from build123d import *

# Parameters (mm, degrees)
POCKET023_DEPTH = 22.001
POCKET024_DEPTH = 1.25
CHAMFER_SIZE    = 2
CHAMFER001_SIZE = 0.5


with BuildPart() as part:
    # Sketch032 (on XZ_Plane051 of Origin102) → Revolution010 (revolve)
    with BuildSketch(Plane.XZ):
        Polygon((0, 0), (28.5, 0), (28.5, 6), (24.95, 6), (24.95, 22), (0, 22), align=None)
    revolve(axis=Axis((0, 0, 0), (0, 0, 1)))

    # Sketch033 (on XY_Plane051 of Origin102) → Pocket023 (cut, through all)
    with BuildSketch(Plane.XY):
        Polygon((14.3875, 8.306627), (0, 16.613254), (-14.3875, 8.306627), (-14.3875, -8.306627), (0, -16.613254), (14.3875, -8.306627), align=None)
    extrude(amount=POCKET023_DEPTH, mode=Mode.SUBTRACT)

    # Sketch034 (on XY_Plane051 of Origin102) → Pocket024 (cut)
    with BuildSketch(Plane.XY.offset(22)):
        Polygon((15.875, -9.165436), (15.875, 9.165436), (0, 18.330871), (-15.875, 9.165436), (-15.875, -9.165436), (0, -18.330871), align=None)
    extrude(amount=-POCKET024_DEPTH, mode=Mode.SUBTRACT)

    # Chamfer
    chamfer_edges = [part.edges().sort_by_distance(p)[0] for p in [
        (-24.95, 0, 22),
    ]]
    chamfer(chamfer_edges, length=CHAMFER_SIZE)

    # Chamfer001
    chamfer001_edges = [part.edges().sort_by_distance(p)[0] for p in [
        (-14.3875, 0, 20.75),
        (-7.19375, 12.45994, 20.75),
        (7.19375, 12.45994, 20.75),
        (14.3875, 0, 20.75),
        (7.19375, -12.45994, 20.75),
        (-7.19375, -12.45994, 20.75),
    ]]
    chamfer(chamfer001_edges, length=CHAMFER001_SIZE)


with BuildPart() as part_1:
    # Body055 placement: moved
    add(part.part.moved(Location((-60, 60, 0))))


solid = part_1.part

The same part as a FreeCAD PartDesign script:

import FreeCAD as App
import Part
import Sketcher
from FreeCAD import Vector
Q = App.Units.Quantity


def edges_at(feature, points):
    """Names of the edges that pass closest to the given points."""
    edges = feature.Shape.Edges
    near = lambda p: min(range(len(edges)), key=lambda i: edges[i].distToShape(Part.Vertex(*p))[0])
    return sorted({f"Edge{near(p) + 1}" for p in points})


def add_polygon(sketch, points):
    """Adds a closed chain of lines whose ends are joined by coincident constraints."""
    first, n = sketch.GeometryCount, len(points)
    for a, b in zip(points, points[1:] + points[:1]):
        sketch.addGeometry(Part.LineSegment(App.Vector(*a, 0), App.Vector(*b, 0)), False)
    for i in range(n):
        sketch.addConstraint(Sketcher.Constraint("Coincident", first + i, 2, first + (i + 1) % n, 1))

doc = App.newDocument("Part")
body = doc.addObject("PartDesign::Body", "Body")

sketch1 = body.newObject("Sketcher::SketchObject", "Sketch")
sketch1.AttachmentSupport = (doc.getObject("XZ_Plane"), [""])
sketch1.MapMode = "FlatFace"
add_polygon(sketch1, [(0, 0), (28.5, 0), (28.5, 6), (24.95, 6), (24.95, 22), (0, 22)])
sketch1.addConstraint(Sketcher.Constraint("Horizontal", 0))
sketch1.addConstraint(Sketcher.Constraint("Vertical", 1))
sketch1.addConstraint(Sketcher.Constraint("Horizontal", 2))
sketch1.addConstraint(Sketcher.Constraint("Vertical", 3))
sketch1.addConstraint(Sketcher.Constraint("Horizontal", 4))
sketch1.addConstraint(Sketcher.Constraint("Vertical", 5))
sketch1.addConstraint(Sketcher.Constraint("Coincident", 5, 2, -1, 1))
sketch1.addConstraint(Sketcher.Constraint("DistanceY", 1, 1, 1, 2, 6.0))
sketch1.addConstraint(Sketcher.Constraint("DistanceY", 3, 1, 3, 2, 16.0))
sketch1.addConstraint(Sketcher.Constraint("DistanceX", 0, 1, 0, 2, 28.5))
sketch1.addConstraint(Sketcher.Constraint("DistanceX", 2, 2, 2, 1, 3.55))
revolution = body.newObject("PartDesign::Revolution", "Revolution")
revolution.Profile = sketch1
revolution.ReferenceAxis = (sketch1, ["V_Axis"])
revolution.Angle = 360

sketch2 = body.newObject("Sketcher::SketchObject", "Sketch001")
sketch2.AttachmentSupport = (doc.getObject("XY_Plane"), [""])
sketch2.MapMode = "FlatFace"
add_polygon(sketch2, [(14.3875, 8.306627), (0, 16.613254), (-14.3875, 8.306627), (-14.3875, -8.306627), (0, -16.613254), (14.3875, -8.306627)])
sketch2.addConstraint(Sketcher.Constraint("Vertical", 2))
sketch2.addConstraint(Sketcher.Constraint("Vertical", 5))
sketch2.addConstraint(Sketcher.Constraint("Symmetric", 0, 2, 3, 2, -1, 1))
sketch2.addConstraint(Sketcher.Constraint("Symmetric", 1, 2, 4, 2, -1, 1))
sketch2.addConstraint(Sketcher.Constraint("PointOnObject", 0, 2, -2))
sketch2.addConstraint(Sketcher.Constraint("Parallel", 0, 3))
sketch2.addConstraint(Sketcher.Constraint("Horizontal", 2, 2, 4, 2))
sketch2.addConstraint(Sketcher.Constraint("Angle", 0, Q("150 deg")))
sketch2.addConstraint(Sketcher.Constraint("DistanceX", 2, 2, 4, 2, 28.775))
sketch2.addConstraint(Sketcher.Constraint("DistanceY", 2, 2, 2, 1, 16.613254))
pocket1 = body.newObject("PartDesign::Pocket", "Pocket")
pocket1.Profile = sketch2
pocket1.Type = "ThroughAll"
pocket1.Reversed = True

sketch3 = body.newObject("Sketcher::SketchObject", "Sketch002")
sketch3.AttachmentSupport = (doc.getObject("XY_Plane"), [""])
sketch3.MapMode = "FlatFace"
sketch3.AttachmentOffset = App.Placement(Vector(0, 0, 22), App.Rotation())
add_polygon(sketch3, [(15.875, -9.165436), (15.875, 9.165436), (0, 18.330871), (-15.875, 9.165436), (-15.875, -9.165436), (0, -18.330871)])
sketch3.addConstraint(Sketcher.Constraint("Vertical", 0))
sketch3.addConstraint(Sketcher.Constraint("Vertical", 3))
sketch3.addConstraint(Sketcher.Constraint("Symmetric", 0, 2, 3, 2, -1, 1))
sketch3.addConstraint(Sketcher.Constraint("Symmetric", 1, 2, 4, 2, -1, 1))
sketch3.addConstraint(Sketcher.Constraint("PointOnObject", 1, 2, -2))
sketch3.addConstraint(Sketcher.Constraint("Parallel", 2, 5))
sketch3.addConstraint(Sketcher.Constraint("Horizontal", 0, 2, 2, 2))
sketch3.addConstraint(Sketcher.Constraint("Angle", 1, Q("150.000001 deg")))
sketch3.addConstraint(Sketcher.Constraint("DistanceX", 2, 2, 0, 2, 31.75))
sketch3.addConstraint(Sketcher.Constraint("DistanceY", 0, 1, 0, 2, 18.330872))
pocket2 = body.newObject("PartDesign::Pocket", "Pocket001")
pocket2.Profile = sketch3
pocket2.Length = 1.25
doc.recompute()

chamfer = body.newObject("PartDesign::Chamfer", "Chamfer")
chamfer.Base = (pocket2, edges_at(pocket2, [(-24.95, 0, 22)]))
chamfer.Size = 2
doc.recompute()

chamfer2 = body.newObject("PartDesign::Chamfer", "Chamfer001")
chamfer2.Base = (chamfer, edges_at(chamfer, [
    (-14.387, 0, 20.75),
    (-7.194, 12.46, 20.75),
    (7.194, 12.46, 20.75),
    (14.387, 0, 20.75),
    (7.194, -12.46, 20.75),
    (-7.194, -12.46, 20.75),
]))
chamfer2.Size = 0.5
body2 = doc.addObject("PartDesign::Body", "Body001")
doc.recompute()

body.Placement = App.Placement(Vector(-60, 60, 0), App.Rotation(Vector(0, 0, 1), 0))
boolean = body2.newObject("PartDesign::Boolean", "Boolean")
boolean.Type = "Fuse"
boolean.addObjects([body])

doc.recompute()
